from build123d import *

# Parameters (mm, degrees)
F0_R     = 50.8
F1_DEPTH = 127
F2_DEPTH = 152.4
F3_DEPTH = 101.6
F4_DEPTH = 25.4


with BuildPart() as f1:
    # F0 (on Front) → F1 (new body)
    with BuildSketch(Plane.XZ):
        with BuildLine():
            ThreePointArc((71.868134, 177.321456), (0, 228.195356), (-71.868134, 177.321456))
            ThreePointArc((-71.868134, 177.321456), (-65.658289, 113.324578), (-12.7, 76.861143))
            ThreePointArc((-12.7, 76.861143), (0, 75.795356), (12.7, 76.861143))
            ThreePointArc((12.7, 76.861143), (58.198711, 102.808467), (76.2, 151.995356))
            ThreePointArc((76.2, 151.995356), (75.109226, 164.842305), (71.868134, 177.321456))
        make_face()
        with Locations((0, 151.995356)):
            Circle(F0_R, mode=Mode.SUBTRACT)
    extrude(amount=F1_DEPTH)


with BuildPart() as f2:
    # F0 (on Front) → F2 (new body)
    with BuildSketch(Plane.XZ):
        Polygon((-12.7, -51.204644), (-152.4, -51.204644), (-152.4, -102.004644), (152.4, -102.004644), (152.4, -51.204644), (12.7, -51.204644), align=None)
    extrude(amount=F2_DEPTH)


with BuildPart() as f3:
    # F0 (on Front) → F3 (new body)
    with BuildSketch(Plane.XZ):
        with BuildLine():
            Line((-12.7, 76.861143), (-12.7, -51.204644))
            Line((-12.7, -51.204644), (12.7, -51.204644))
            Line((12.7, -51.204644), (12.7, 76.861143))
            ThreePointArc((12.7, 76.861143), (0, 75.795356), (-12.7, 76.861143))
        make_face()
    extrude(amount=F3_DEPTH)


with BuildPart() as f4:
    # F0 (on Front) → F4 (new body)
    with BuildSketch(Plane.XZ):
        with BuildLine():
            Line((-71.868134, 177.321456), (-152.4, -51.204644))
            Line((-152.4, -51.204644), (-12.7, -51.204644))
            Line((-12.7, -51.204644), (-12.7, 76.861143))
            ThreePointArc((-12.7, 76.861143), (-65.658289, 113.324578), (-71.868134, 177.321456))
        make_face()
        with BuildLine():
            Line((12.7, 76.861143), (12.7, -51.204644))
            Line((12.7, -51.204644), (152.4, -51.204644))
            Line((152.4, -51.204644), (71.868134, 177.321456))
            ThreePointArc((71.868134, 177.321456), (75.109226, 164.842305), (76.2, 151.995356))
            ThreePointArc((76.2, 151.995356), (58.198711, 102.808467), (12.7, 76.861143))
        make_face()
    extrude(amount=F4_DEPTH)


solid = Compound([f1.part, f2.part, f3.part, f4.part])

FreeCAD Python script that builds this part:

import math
import FreeCAD as App
import Part
import Sketcher

V = App.Vector
Q = App.Units.Quantity

doc = App.newDocument("Part")
body = doc.addObject("PartDesign::Body", "Body")

sketch1 = body.newObject("Sketcher::SketchObject", "Sketch")
sketch1.AttachmentSupport = (doc.getObject("XZ_Plane"), [""])
sketch1.MapMode = "FlatFace"
sketch1.addGeometry([
    Part.ArcOfCircle(Part.Circle(V(0, 151.995356, 0), V(0, 0, 1), 76.2), math.radians(19.412294), math.radians(160.587706)),
    Part.ArcOfCircle(Part.Circle(V(0, 151.995356, 0), V(0, 0, 1), 76.2), math.radians(160.587706), math.radians(260.405932)),
    Part.ArcOfCircle(Part.Circle(V(0, 151.995339, 0), V(0, 0, 1), 76.199983), math.radians(-99.59407), math.radians(-80.40593)),
    Part.ArcOfCircle(Part.Circle(V(0.000001, 151.995356, 0), V(0, 0, 1), 76.199999), math.radians(-80.405932), math.radians(0)),
    Part.ArcOfCircle(Part.Circle(V(-0.000038, 151.99535, 0), V(0, 0, 1), 76.200038), math.radians(0.000005), math.radians(19.412289)),
    Part.Circle(V(0, 151.995356, 0), V(0, 0, 1), 50.8),
], False)
sketch1.addConstraint([
    Sketcher.Constraint("Coincident", 0, 2, 1, 1),
    Sketcher.Constraint("Coincident", 1, 2, 2, 1),
    Sketcher.Constraint("Coincident", 2, 2, 3, 1),
    Sketcher.Constraint("Coincident", 3, 2, 4, 1),
    Sketcher.Constraint("Coincident", 4, 2, 0, 1),
    Sketcher.Constraint("Coincident", 1, 3, 0, 3),
    Sketcher.Constraint("Coincident", 3, 3, 0, 3),
    Sketcher.Constraint("Coincident", 5, 3, 0, 3),
    Sketcher.Constraint("PointOnObject", 0, 3, -2),
    Sketcher.Constraint("PointOnObject", 2, 3, -2),
    Sketcher.Constraint("Diameter", 5, Q("4 in")),
    Sketcher.Constraint("Radius", 0, Q("3 in")),
    Sketcher.Constraint("DistanceX", 1, 2, 2, 2, Q("1 in")),
    Sketcher.Constraint("DistanceX", 1, 2, -1, 1, Q("0.5 in")),
    Sketcher.Constraint("Radius", 4, 76.200038),
    Sketcher.Constraint("Radius", 2, 76.199983),
    Sketcher.Constraint("DistanceY", 1, 3, 0, 2, 25.3261),
    Sketcher.Constraint("DistanceY", 3, 2, 4, 2, 25.3261),
    Sketcher.Constraint("DistanceY", 3, 3, 4, 2, 25.3261),
    Sketcher.Constraint("DistanceY", -1, 1, 2, 3, 151.995339),
])
pad1 = body.newObject("PartDesign::Pad", "Pad")
pad1.Profile = sketch1
pad1.Length = Q("5 in")
body2 = doc.addObject("PartDesign::Body", "Body001")

sketch2 = body2.newObject("Sketcher::SketchObject", "Sketch001")
sketch2.AttachmentSupport = (doc.getObject("XZ_Plane001"), [""])
sketch2.MapMode = "FlatFace"
sketch2.addGeometry([
    Part.LineSegment(V(-152.4, -51.204644, 0), V(-152.4, -102.004644, 0)),
    Part.LineSegment(V(-152.4, -102.004644, 0), V(152.4, -102.004644, 0)),
    Part.LineSegment(V(152.4, -102.004644, 0), V(152.4, -51.204644, 0)),
    Part.LineSegment(V(152.4, -51.204644, 0), V(-152.4, -51.204644, 0)),
], False)
sketch2.addConstraint([
    Sketcher.Constraint("Coincident", 0, 2, 1, 1),
    Sketcher.Constraint("Coincident", 1, 2, 2, 1),
    Sketcher.Constraint("Coincident", 2, 2, 3, 1),
    Sketcher.Constraint("Coincident", 3, 2, 0, 1),
    Sketcher.Constraint("Vertical", 0),
    Sketcher.Constraint("Horizontal", 1),
    Sketcher.Constraint("Vertical", 2),
    Sketcher.Constraint("Horizontal", 3),
    Sketcher.Constraint("DistanceX", 1, 1, 1, 2, Q("12 in")),
    Sketcher.Constraint("DistanceY", 0, 2, 0, 1, Q("2 in")),
    Sketcher.Constraint("DistanceX", 0, 2, -1, 1, Q("6 in")),
    Sketcher.Constraint("DistanceY", 0, 2, -1, 1, 102.004644),
])
pad2 = body2.newObject("PartDesign::Pad", "Pad001")
pad2.Profile = sketch2
pad2.Length = Q("6 in")
body3 = doc.addObject("PartDesign::Body", "Body002")

sketch3 = body3.newObject("Sketcher::SketchObject", "Sketch002")
sketch3.AttachmentSupport = (doc.getObject("XZ_Plane002"), [""])
sketch3.MapMode = "FlatFace"
sketch3.addGeometry([
    Part.LineSegment(V(-12.7, 76.861143, 0), V(-12.7, -51.204644, 0)),
    Part.LineSegment(V(-12.7, -51.204644, 0), V(12.7, -51.204644, 0)),
    Part.LineSegment(V(12.7, -51.204644, 0), V(12.7, 76.861143, 0)),
    Part.ArcOfCircle(Part.Circle(V(0, 151.995339, 0), V(0, 0, 1), 76.199983), math.radians(-99.59407), math.radians(-80.40593)),
], False)
sketch3.addConstraint([
    Sketcher.Constraint("Coincident", 0, 2, 1, 1),
    Sketcher.Constraint("Coincident", 1, 2, 2, 1),
    Sketcher.Constraint("Coincident", 2, 2, 3, 2),
    Sketcher.Constraint("Coincident", 3, 1, 0, 1),
    Sketcher.Constraint("Vertical", 0),
    Sketcher.Constraint("Horizontal", 1),
    Sketcher.Constraint("Vertical", 2),
    Sketcher.Constraint("Symmetric", 2, 2, 3, 1, -2),
    Sketcher.Constraint("DistanceX", 1, 1, 1, 2, Q("1 in")),
    Sketcher.Constraint("Radius", 3, 76.199983),
    Sketcher.Constraint("DistanceY", 0, 2, 0, 1, 128.065787),
    Sketcher.Constraint("DistanceY", -1, 1, 3, 3, 151.995339),
])
pad3 = body3.newObject("PartDesign::Pad", "Pad002")
pad3.Profile = sketch3
pad3.Length = Q("4 in")
body4 = doc.addObject("PartDesign::Body", "Body003")
body4.AllowCompound = True

sketch4 = body4.newObject("Sketcher::SketchObject", "Sketch003")
sketch4.AttachmentSupport = (doc.getObject("XZ_Plane003"), [""])
sketch4.MapMode = "FlatFace"
sketch4.addGeometry([
    Part.LineSegment(V(-71.868134, 177.321456, 0), V(-152.4, -51.204644, 0)),
    Part.LineSegment(V(-152.4, -51.204644, 0), V(-12.7, -51.204644, 0)),
    Part.LineSegment(V(-12.7, -51.204644, 0), V(-12.7, 76.861143, 0)),
    Part.ArcOfCircle(Part.Circle(V(0, 151.995356, 0), V(0, 0, 1), 76.2), math.radians(160.587706), math.radians(260.405932)),
    Part.LineSegment(V(12.7, 76.861143, 0), V(12.7, -51.204644, 0)),
    Part.LineSegment(V(12.7, -51.204644, 0), V(152.4, -51.204644, 0)),
    Part.LineSegment(V(152.4, -51.204644, 0), V(71.868134, 177.321456, 0)),
    Part.ArcOfCircle(Part.Circle(V(-0.000038, 151.99535, 0), V(0, 0, 1), 76.200038), math.radians(0.000005), math.radians(19.412289)),
    Part.ArcOfCircle(Part.Circle(V(0.000001, 151.995356, 0), V(0, 0, 1), 76.199999), math.radians(-80.405932), math.radians(0)),
], False)
sketch4.addConstraint([
    Sketcher.Constraint("Coincident", 0, 2, 1, 1),
    Sketcher.Constraint("Coincident", 1, 2, 2, 1),
    Sketcher.Constraint("Coincident", 2, 2, 3, 2),
    Sketcher.Constraint("Coincident", 3, 1, 0, 1),
    Sketcher.Constraint("Coincident", 4, 2, 5, 1),
    Sketcher.Constraint("Coincident", 5, 2, 6, 1),
    Sketcher.Constraint("Coincident", 6, 2, 7, 2),
    Sketcher.Constraint("Coincident", 7, 1, 8, 2),
    Sketcher.Constraint("Coincident", 8, 1, 4, 1),
    Sketcher.Constraint("Horizontal", 1),
    Sketcher.Constraint("Vertical", 2),
    Sketcher.Constraint("Vertical", 4),
    Sketcher.Constraint("Horizontal", 5),
    Sketcher.Constraint("Coincident", 8, 3, 3, 3),
    Sketcher.Constraint("PointOnObject", 3, 3, -2),
    Sketcher.Constraint("Radius", 3, Q("3 in")),
    Sketcher.Constraint("Radius", 8, Q("3 in")),
    Sketcher.Constraint("DistanceX", 1, 1, 1, 2, Q("5.5 in")),
    Sketcher.Constraint("DistanceX", 5, 1, 5, 2, Q("5.5 in")),
    Sketcher.Constraint("DistanceX", 0, 2, -1, 1, Q("6 in")),
    Sketcher.Constraint("DistanceX", -1, 1, 5, 2, Q("6 in")),
    Sketcher.Constraint("DistanceY", 0, 2, 8, 3, Q("8 in")),
    Sketcher.Constraint("DistanceY", 4, 2, 8, 3, Q("8 in")),
    Sketcher.Constraint("Radius", 7, 76.200038),
    Sketcher.Constraint("DistanceY", 3, 3, 3, 1, 25.3261),
    Sketcher.Constraint("DistanceY", 8, 3, 6, 2, 25.3261),
    Sketcher.Constraint("DistanceY", 7, 1, 6, 2, 25.3261),
    Sketcher.Constraint("DistanceY", -1, 1, 7, 3, 151.99535),
    Sketcher.Constraint("Distance", 6, 242.300557),
])
pad4 = body4.newObject("PartDesign::Pad", "Pad003")
pad4.Profile = sketch4
pad4.Length = Q("1 in")

doc.recompute()
